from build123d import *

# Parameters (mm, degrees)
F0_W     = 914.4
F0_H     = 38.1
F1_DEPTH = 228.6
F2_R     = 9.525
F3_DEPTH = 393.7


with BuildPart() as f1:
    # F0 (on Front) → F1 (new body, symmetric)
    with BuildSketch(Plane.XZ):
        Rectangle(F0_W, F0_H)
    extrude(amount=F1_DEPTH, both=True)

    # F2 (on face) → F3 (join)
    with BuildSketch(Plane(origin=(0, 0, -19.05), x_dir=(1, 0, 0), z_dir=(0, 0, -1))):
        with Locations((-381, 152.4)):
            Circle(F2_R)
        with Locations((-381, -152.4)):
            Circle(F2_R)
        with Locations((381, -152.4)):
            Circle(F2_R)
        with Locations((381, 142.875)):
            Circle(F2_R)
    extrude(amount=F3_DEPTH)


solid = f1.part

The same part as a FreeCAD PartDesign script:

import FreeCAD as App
import Part
import Sketcher
from FreeCAD import Vector
Q = App.Units.Quantity

doc = App.newDocument("Part")
body = doc.addObject("PartDesign::Body", "Body")

# Sketch on XZ plane
sketch1 = doc.addObject("Sketcher::SketchObject", "Sketch")
body.addObject(sketch1)
sketch1.AttachmentSupport = (doc.XZ_Plane, [""])
sketch1.MapMode = "FlatFace"
sketch1.addGeometry([
    Part.LineSegment(Vector(-457, 19, 0), Vector(-457, -19, 0)),
    Part.LineSegment(Vector(-457, -19, 0), Vector(457, -19, 0)),
    Part.LineSegment(Vector(457, -19, 0), Vector(457, 19, 0)),
    Part.LineSegment(Vector(457, 19, 0), Vector(-457, 19, 0)),
], False)
sketch1.addConstraint([
    Sketcher.Constraint("Coincident", 0, 2, 1, 1),
    Sketcher.Constraint("Coincident", 1, 2, 2, 1),
    Sketcher.Constraint("Coincident", 2, 2, 3, 1),
    Sketcher.Constraint("Coincident", 3, 2, 0, 1),
    Sketcher.Constraint("Vertical", 0),
    Sketcher.Constraint("Horizontal", 1),
    Sketcher.Constraint("Vertical", 2),
    Sketcher.Constraint("Horizontal", 3),
    Sketcher.Constraint("Symmetric", 0, 2, 2, 2, -1, 1),
    Sketcher.Constraint("DistanceX", 1, 1, 1, 2, Q("36 in")),
    Sketcher.Constraint("DistanceY", 0, 2, 0, 1, Q("1.5 in")),
])
pad1 = doc.addObject("PartDesign::Pad", "Pad")
body.addObject(pad1)
pad1.Profile = sketch1
pad1.Length = Q("18 in")
pad1.Midplane = True

# Sketch on XY plane
sketch2 = doc.addObject("Sketcher::SketchObject", "Sketch001")
body.addObject(sketch2)
sketch2.AttachmentSupport = (doc.XY_Plane, [""])
sketch2.MapMode = "FlatFace"
sketch2.AttachmentOffset = App.Placement(Vector(0, 0, -0.75 * 25.4), App.Rotation())
sketch2.addGeometry([
    Part.Circle(Vector(-381, -152, 0), Vector(0, 0, 1), 10),
    Part.Circle(Vector(-381, 152, 0), Vector(0, 0, 1), 10),
    Part.Circle(Vector(381, 152, 0), Vector(0, 0, 1), 10),
    Part.Circle(Vector(381, -143, 0), Vector(0, 0, 1), 10),
], False)
sketch2.addConstraint([
    Sketcher.Constraint("Equal", 0, 1),
    Sketcher.Constraint("Equal", 1, 2),
    Sketcher.Constraint("Equal", 2, 3),
    Sketcher.Constraint("Symmetric", 0, 3, 2, 3, -1, 1),
    Sketcher.Constraint("Symmetric", 1, 3, 2, 3, -2),
    Sketcher.Constraint("Vertical", 2, 3, 3, 3),
    Sketcher.Constraint("Diameter", 0, Q("0.75 in")),
    Sketcher.Constraint("DistanceX", 0, 3, -1, 1, Q("15 in")),
    Sketcher.Constraint("DistanceY", 0, 3, -1, 1, Q("6 in")),
    Sketcher.Constraint("DistanceY", 3, 3, -1, 1, Q("5.625 in")),
])
pad2 = doc.addObject("PartDesign::Pad", "Pad001")
body.addObject(pad2)
pad2.Profile = sketch2
pad2.Length = Q("15.5 in")
pad2.Reversed = True

doc.recompute()
